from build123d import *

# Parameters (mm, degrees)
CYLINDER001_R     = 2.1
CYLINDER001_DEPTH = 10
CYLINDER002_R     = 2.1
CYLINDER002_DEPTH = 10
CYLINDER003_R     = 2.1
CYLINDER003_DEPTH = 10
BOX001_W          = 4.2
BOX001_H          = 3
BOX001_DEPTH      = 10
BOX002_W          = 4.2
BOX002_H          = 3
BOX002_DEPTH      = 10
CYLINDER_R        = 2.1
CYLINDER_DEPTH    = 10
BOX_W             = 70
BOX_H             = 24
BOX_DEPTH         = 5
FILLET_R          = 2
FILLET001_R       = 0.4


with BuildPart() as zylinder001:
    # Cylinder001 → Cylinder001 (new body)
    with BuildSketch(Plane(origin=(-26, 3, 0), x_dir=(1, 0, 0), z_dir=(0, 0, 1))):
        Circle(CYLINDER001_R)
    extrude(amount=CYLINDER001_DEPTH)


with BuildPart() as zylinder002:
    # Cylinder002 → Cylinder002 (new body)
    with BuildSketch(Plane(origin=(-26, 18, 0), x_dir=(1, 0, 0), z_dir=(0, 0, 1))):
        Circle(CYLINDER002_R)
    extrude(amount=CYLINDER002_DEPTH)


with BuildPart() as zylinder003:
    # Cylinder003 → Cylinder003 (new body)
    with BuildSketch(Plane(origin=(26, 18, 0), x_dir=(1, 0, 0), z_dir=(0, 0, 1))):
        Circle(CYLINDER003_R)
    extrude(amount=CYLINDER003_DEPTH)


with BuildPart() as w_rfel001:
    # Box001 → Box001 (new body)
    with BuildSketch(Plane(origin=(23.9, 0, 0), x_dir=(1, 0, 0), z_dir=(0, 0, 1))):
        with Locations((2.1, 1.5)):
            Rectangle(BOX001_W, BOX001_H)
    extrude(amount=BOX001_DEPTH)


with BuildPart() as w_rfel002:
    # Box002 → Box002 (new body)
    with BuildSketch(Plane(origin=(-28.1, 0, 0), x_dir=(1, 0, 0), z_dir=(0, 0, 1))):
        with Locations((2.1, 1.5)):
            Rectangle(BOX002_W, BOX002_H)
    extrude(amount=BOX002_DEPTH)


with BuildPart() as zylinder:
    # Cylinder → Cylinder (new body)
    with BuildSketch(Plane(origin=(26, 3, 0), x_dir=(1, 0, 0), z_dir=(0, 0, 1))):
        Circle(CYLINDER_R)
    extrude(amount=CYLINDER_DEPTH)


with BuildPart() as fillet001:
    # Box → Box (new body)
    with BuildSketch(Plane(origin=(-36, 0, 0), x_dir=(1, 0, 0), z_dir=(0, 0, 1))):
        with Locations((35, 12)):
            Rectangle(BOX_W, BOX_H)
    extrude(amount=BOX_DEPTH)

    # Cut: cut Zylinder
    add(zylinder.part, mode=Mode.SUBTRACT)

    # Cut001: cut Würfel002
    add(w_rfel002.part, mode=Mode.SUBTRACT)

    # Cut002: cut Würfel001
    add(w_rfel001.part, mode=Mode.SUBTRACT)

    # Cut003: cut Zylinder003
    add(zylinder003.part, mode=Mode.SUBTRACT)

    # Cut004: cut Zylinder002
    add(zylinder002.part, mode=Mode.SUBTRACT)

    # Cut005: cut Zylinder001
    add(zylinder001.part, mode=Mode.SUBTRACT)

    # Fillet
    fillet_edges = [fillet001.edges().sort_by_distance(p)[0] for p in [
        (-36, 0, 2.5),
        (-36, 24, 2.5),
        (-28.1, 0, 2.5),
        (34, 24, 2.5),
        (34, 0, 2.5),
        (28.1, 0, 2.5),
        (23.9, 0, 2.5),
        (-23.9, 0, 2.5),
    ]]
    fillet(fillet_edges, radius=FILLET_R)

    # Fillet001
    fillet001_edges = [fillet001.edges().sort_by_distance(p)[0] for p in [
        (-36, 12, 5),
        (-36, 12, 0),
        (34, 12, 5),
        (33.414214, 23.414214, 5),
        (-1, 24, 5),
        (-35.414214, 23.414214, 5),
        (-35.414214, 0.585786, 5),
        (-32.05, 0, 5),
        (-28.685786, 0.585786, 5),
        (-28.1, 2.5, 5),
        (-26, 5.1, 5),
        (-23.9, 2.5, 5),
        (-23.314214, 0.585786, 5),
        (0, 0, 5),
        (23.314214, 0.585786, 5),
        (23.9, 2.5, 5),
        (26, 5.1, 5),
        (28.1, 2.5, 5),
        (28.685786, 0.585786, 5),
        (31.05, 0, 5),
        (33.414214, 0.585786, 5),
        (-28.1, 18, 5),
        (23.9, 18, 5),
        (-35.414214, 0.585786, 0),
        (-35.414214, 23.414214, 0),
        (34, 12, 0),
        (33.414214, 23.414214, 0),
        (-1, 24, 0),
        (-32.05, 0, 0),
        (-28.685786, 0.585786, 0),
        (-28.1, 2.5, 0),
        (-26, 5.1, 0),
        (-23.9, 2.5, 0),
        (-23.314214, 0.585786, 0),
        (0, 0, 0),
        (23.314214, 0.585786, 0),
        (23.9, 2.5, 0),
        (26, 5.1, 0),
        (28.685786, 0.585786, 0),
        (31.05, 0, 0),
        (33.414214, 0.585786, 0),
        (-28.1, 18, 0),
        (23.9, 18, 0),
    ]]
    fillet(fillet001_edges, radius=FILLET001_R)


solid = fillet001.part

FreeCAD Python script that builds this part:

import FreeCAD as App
import Part
import Sketcher
from FreeCAD import Vector
Q = App.Units.Quantity


def edges_at(feature, points):
    """Names of the edges that pass closest to the given points."""
    edges = feature.Shape.Edges
    near = lambda p: min(range(len(edges)), key=lambda i: edges[i].distToShape(Part.Vertex(*p))[0])
    return sorted({f"Edge{near(p) + 1}" for p in points})


def add_polygon(sketch, points):
    """Adds a closed chain of lines whose ends are joined by coincident constraints."""
    first, n = sketch.GeometryCount, len(points)
    for a, b in zip(points, points[1:] + points[:1]):
        sketch.addGeometry(Part.LineSegment(App.Vector(*a, 0), App.Vector(*b, 0)), False)
    for i in range(n):
        sketch.addConstraint(Sketcher.Constraint("Coincident", first + i, 2, first + (i + 1) % n, 1))

doc = App.newDocument("Part")
body = doc.addObject("PartDesign::Body", "Body")

sketch1 = doc.addObject("Sketcher::SketchObject", "Sketch")
body.addObject(sketch1)
sketch1.AttachmentSupport = (doc.XY_Plane, [""])
sketch1.MapMode = "FlatFace"
sketch1.addGeometry(Part.Circle(Vector(-26, 3, 0), Vector(0, 0, 1), 2.1), False)
sketch1.addConstraint(Sketcher.Constraint("Diameter", 0, Q("4.2 mm")))
sketch1.addConstraint(Sketcher.Constraint("DistanceX", 0, 3, -1, 1, Q("26 mm")))
sketch1.addConstraint(Sketcher.Constraint("DistanceY", -1, 1, 0, 3, Q("3 mm")))
pad1 = doc.addObject("PartDesign::Pad", "Pad")
body.addObject(pad1)
pad1.Profile = sketch1
pad1.Length = 10
body2 = doc.addObject("PartDesign::Body", "Body001")

sketch2 = doc.addObject("Sketcher::SketchObject", "Sketch001")
body2.addObject(sketch2)
sketch2.AttachmentSupport = (doc.getObject("XY_Plane001"), [""])
sketch2.MapMode = "FlatFace"
sketch2.addGeometry(Part.Circle(Vector(-26, 18, 0), Vector(0, 0, 1), 2.1), False)
sketch2.addConstraint(Sketcher.Constraint("Diameter", 0, Q("4.2 mm")))
sketch2.addConstraint(Sketcher.Constraint("DistanceX", 0, 3, -1, 1, Q("26 mm")))
sketch2.addConstraint(Sketcher.Constraint("DistanceY", -1, 1, 0, 3, Q("18 mm")))
pad2 = doc.addObject("PartDesign::Pad", "Pad001")
body2.addObject(pad2)
pad2.Profile = sketch2
pad2.Length = 10
body3 = doc.addObject("PartDesign::Body", "Body002")

sketch3 = doc.addObject("Sketcher::SketchObject", "Sketch002")
body3.addObject(sketch3)
sketch3.AttachmentSupport = (doc.getObject("XY_Plane002"), [""])
sketch3.MapMode = "FlatFace"
sketch3.addGeometry(Part.Circle(Vector(26, 18, 0), Vector(0, 0, 1), 2.1), False)
sketch3.addConstraint(Sketcher.Constraint("Diameter", 0, Q("4.2 mm")))
sketch3.addConstraint(Sketcher.Constraint("DistanceX", -1, 1, 0, 3, Q("26 mm")))
sketch3.addConstraint(Sketcher.Constraint("DistanceY", -1, 1, 0, 3, Q("18 mm")))
pad3 = doc.addObject("PartDesign::Pad", "Pad002")
body3.addObject(pad3)
pad3.Profile = sketch3
pad3.Length = 10
body4 = doc.addObject("PartDesign::Body", "Body003")

sketch4 = doc.addObject("Sketcher::SketchObject", "Sketch003")
body4.addObject(sketch4)
sketch4.AttachmentSupport = (doc.getObject("XY_Plane003"), [""])
sketch4.MapMode = "FlatFace"
add_polygon(sketch4, [(23.9, 3), (23.9, 0), (28.1, 0), (28.1, 3)])
sketch4.addConstraint(Sketcher.Constraint("Vertical", 0))
sketch4.addConstraint(Sketcher.Constraint("Horizontal", 1))
sketch4.addConstraint(Sketcher.Constraint("Vertical", 2))
sketch4.addConstraint(Sketcher.Constraint("Horizontal", 3))
sketch4.addConstraint(Sketcher.Constraint("PointOnObject", 0, 2, -1))
sketch4.addConstraint(Sketcher.Constraint("DistanceY", 0, 2, 0, 1, Q("3 mm")))
sketch4.addConstraint(Sketcher.Constraint("DistanceX", 1, 1, 1, 2, Q("4.2 mm")))
sketch4.addConstraint(Sketcher.Constraint("DistanceX", -1, 1, 0, 2, Q("23.9 mm")))
pad4 = doc.addObject("PartDesign::Pad", "Pad003")
body4.addObject(pad4)
pad4.Profile = sketch4
pad4.Length = 10
body5 = doc.addObject("PartDesign::Body", "Body004")

sketch5 = doc.addObject("Sketcher::SketchObject", "Sketch004")
body5.addObject(sketch5)
sketch5.AttachmentSupport = (doc.getObject("XY_Plane004"), [""])
sketch5.MapMode = "FlatFace"
add_polygon(sketch5, [(-28.1, 3), (-28.1, 0), (-23.9, 0), (-23.9, 3)])
sketch5.addConstraint(Sketcher.Constraint("Vertical", 0))
sketch5.addConstraint(Sketcher.Constraint("Horizontal", 1))
sketch5.addConstraint(Sketcher.Constraint("Vertical", 2))
sketch5.addConstraint(Sketcher.Constraint("Horizontal", 3))
sketch5.addConstraint(Sketcher.Constraint("PointOnObject", 0, 2, -1))
sketch5.addConstraint(Sketcher.Constraint("DistanceY", 0, 2, 0, 1, Q("3 mm")))
sketch5.addConstraint(Sketcher.Constraint("DistanceX", 1, 1, 1, 2, Q("4.2 mm")))
sketch5.addConstraint(Sketcher.Constraint("DistanceX", 0, 2, -1, 1, Q("28.1 mm")))
pad5 = doc.addObject("PartDesign::Pad", "Pad004")
body5.addObject(pad5)
pad5.Profile = sketch5
pad5.Length = 10
body6 = doc.addObject("PartDesign::Body", "Body005")

sketch6 = doc.addObject("Sketcher::SketchObject", "Sketch005")
body6.addObject(sketch6)
sketch6.AttachmentSupport = (doc.getObject("XY_Plane005"), [""])
sketch6.MapMode = "FlatFace"
sketch6.addGeometry(Part.Circle(Vector(26, 3, 0), Vector(0, 0, 1), 2.1), False)
sketch6.addConstraint(Sketcher.Constraint("Diameter", 0, Q("4.2 mm")))
sketch6.addConstraint(Sketcher.Constraint("DistanceX", -1, 1, 0, 3, Q("26 mm")))
sketch6.addConstraint(Sketcher.Constraint("DistanceY", -1, 1, 0, 3, Q("3 mm")))
pad6 = doc.addObject("PartDesign::Pad", "Pad005")
body6.addObject(pad6)
pad6.Profile = sketch6
pad6.Length = 10
body7 = doc.addObject("PartDesign::Body", "Body006")

sketch7 = doc.addObject("Sketcher::SketchObject", "Sketch006")
body7.addObject(sketch7)
sketch7.AttachmentSupport = (doc.getObject("XY_Plane006"), [""])
sketch7.MapMode = "FlatFace"
add_polygon(sketch7, [(-36, 24), (-36, 0), (34, 0), (34, 24)])
sketch7.addConstraint(Sketcher.Constraint("Vertical", 0))
sketch7.addConstraint(Sketcher.Constraint("Horizontal", 1))
sketch7.addConstraint(Sketcher.Constraint("Vertical", 2))
sketch7.addConstraint(Sketcher.Constraint("Horizontal", 3))
sketch7.addConstraint(Sketcher.Constraint("PointOnObject", 0, 2, -1))
sketch7.addConstraint(Sketcher.Constraint("DistanceX", 1, 1, 1, 2, Q("70 mm")))
sketch7.addConstraint(Sketcher.Constraint("DistanceY", 0, 2, 0, 1, Q("24 mm")))
sketch7.addConstraint(Sketcher.Constraint("DistanceX", 0, 2, -1, 1, Q("36 mm")))
pad7 = doc.addObject("PartDesign::Pad", "Pad006")
body7.addObject(pad7)
pad7.Profile = sketch7
pad7.Length = 5
doc.recompute()

boolean = doc.addObject("PartDesign::Boolean", "Boolean")
body7.addObject(boolean)
boolean.Type = "Cut"
boolean.addObjects([body6])
doc.recompute()

boolean2 = doc.addObject("PartDesign::Boolean", "Boolean001")
body7.addObject(boolean2)
boolean2.Type = "Cut"
boolean2.addObjects([body5])
doc.recompute()

boolean3 = doc.addObject("PartDesign::Boolean", "Boolean002")
body7.addObject(boolean3)
boolean3.Type = "Cut"
boolean3.addObjects([body4])
doc.recompute()

boolean4 = doc.addObject("PartDesign::Boolean", "Boolean003")
body7.addObject(boolean4)
boolean4.Type = "Cut"
boolean4.addObjects([body3])
doc.recompute()

boolean5 = doc.addObject("PartDesign::Boolean", "Boolean004")
body7.addObject(boolean5)
boolean5.Type = "Cut"
boolean5.addObjects([body2])
doc.recompute()

boolean6 = doc.addObject("PartDesign::Boolean", "Boolean005")
body7.addObject(boolean6)
boolean6.Type = "Cut"
boolean6.addObjects([body])
doc.recompute()

fillet = doc.addObject("PartDesign::Fillet", "Fillet")
body7.addObject(fillet)
fillet.Base = (boolean6, edges_at(boolean6, [
    (-36, 0, 2.5),
    (-36, 24, 2.5),
    (-28.1, 0, 2.5),
    (34, 24, 2.5),
    (34, 0, 2.5),
    (28.1, 0, 2.5),
    (23.9, 0, 2.5),
    (-23.9, 0, 2.5),
]))
fillet.Radius = 2
doc.recompute()

fillet2 = doc.addObject("PartDesign::Fillet", "Fillet001")
body7.addObject(fillet2)
fillet2.Base = (fillet, edges_at(fillet, [
    (-36, 12, 5),
    (-36, 12, 0),
    (34, 12, 5),
    (33.414, 23.414, 5),
    (-1, 24, 5),
    (-35.414, 23.414, 5),
    (-35.414, 0.586, 5),
    (-32.05, 0, 5),
    (-28.686, 0.586, 5),
    (-28.1, 2.5, 5),
    (-26, 5.1, 5),
    (-23.9, 2.5, 5),
    (-23.314, 0.586, 5),
    (0, 0, 5),
    (23.314, 0.586, 5),
    (23.9, 2.5, 5),
    (26, 5.1, 5),
    (28.1, 2.5, 5),
    (28.686, 0.586, 5),
    (31.05, 0, 5),
    (33.414, 0.586, 5),
    (-28.1, 18, 5),
    (23.9, 18, 5),
    (-35.414, 0.586, 0),
    (-35.414, 23.414, 0),
    (34, 12, 0),
    (33.414, 23.414, 0),
    (-1, 24, 0),
    (-32.05, 0, 0),
    (-28.686, 0.586, 0),
    (-28.1, 2.5, 0),
    (-26, 5.1, 0),
    (-23.9, 2.5, 0),
    (-23.314, 0.586, 0),
    (0, 0, 0),
    (23.314, 0.586, 0),
    (23.9, 2.5, 0),
    (26, 5.1, 0),
    (28.686, 0.586, 0),
    (31.05, 0, 0),
    (33.414, 0.586, 0),
    (-28.1, 18, 0),
    (23.9, 18, 0),
]))
fillet2.Radius = 0.4

doc.recompute()
